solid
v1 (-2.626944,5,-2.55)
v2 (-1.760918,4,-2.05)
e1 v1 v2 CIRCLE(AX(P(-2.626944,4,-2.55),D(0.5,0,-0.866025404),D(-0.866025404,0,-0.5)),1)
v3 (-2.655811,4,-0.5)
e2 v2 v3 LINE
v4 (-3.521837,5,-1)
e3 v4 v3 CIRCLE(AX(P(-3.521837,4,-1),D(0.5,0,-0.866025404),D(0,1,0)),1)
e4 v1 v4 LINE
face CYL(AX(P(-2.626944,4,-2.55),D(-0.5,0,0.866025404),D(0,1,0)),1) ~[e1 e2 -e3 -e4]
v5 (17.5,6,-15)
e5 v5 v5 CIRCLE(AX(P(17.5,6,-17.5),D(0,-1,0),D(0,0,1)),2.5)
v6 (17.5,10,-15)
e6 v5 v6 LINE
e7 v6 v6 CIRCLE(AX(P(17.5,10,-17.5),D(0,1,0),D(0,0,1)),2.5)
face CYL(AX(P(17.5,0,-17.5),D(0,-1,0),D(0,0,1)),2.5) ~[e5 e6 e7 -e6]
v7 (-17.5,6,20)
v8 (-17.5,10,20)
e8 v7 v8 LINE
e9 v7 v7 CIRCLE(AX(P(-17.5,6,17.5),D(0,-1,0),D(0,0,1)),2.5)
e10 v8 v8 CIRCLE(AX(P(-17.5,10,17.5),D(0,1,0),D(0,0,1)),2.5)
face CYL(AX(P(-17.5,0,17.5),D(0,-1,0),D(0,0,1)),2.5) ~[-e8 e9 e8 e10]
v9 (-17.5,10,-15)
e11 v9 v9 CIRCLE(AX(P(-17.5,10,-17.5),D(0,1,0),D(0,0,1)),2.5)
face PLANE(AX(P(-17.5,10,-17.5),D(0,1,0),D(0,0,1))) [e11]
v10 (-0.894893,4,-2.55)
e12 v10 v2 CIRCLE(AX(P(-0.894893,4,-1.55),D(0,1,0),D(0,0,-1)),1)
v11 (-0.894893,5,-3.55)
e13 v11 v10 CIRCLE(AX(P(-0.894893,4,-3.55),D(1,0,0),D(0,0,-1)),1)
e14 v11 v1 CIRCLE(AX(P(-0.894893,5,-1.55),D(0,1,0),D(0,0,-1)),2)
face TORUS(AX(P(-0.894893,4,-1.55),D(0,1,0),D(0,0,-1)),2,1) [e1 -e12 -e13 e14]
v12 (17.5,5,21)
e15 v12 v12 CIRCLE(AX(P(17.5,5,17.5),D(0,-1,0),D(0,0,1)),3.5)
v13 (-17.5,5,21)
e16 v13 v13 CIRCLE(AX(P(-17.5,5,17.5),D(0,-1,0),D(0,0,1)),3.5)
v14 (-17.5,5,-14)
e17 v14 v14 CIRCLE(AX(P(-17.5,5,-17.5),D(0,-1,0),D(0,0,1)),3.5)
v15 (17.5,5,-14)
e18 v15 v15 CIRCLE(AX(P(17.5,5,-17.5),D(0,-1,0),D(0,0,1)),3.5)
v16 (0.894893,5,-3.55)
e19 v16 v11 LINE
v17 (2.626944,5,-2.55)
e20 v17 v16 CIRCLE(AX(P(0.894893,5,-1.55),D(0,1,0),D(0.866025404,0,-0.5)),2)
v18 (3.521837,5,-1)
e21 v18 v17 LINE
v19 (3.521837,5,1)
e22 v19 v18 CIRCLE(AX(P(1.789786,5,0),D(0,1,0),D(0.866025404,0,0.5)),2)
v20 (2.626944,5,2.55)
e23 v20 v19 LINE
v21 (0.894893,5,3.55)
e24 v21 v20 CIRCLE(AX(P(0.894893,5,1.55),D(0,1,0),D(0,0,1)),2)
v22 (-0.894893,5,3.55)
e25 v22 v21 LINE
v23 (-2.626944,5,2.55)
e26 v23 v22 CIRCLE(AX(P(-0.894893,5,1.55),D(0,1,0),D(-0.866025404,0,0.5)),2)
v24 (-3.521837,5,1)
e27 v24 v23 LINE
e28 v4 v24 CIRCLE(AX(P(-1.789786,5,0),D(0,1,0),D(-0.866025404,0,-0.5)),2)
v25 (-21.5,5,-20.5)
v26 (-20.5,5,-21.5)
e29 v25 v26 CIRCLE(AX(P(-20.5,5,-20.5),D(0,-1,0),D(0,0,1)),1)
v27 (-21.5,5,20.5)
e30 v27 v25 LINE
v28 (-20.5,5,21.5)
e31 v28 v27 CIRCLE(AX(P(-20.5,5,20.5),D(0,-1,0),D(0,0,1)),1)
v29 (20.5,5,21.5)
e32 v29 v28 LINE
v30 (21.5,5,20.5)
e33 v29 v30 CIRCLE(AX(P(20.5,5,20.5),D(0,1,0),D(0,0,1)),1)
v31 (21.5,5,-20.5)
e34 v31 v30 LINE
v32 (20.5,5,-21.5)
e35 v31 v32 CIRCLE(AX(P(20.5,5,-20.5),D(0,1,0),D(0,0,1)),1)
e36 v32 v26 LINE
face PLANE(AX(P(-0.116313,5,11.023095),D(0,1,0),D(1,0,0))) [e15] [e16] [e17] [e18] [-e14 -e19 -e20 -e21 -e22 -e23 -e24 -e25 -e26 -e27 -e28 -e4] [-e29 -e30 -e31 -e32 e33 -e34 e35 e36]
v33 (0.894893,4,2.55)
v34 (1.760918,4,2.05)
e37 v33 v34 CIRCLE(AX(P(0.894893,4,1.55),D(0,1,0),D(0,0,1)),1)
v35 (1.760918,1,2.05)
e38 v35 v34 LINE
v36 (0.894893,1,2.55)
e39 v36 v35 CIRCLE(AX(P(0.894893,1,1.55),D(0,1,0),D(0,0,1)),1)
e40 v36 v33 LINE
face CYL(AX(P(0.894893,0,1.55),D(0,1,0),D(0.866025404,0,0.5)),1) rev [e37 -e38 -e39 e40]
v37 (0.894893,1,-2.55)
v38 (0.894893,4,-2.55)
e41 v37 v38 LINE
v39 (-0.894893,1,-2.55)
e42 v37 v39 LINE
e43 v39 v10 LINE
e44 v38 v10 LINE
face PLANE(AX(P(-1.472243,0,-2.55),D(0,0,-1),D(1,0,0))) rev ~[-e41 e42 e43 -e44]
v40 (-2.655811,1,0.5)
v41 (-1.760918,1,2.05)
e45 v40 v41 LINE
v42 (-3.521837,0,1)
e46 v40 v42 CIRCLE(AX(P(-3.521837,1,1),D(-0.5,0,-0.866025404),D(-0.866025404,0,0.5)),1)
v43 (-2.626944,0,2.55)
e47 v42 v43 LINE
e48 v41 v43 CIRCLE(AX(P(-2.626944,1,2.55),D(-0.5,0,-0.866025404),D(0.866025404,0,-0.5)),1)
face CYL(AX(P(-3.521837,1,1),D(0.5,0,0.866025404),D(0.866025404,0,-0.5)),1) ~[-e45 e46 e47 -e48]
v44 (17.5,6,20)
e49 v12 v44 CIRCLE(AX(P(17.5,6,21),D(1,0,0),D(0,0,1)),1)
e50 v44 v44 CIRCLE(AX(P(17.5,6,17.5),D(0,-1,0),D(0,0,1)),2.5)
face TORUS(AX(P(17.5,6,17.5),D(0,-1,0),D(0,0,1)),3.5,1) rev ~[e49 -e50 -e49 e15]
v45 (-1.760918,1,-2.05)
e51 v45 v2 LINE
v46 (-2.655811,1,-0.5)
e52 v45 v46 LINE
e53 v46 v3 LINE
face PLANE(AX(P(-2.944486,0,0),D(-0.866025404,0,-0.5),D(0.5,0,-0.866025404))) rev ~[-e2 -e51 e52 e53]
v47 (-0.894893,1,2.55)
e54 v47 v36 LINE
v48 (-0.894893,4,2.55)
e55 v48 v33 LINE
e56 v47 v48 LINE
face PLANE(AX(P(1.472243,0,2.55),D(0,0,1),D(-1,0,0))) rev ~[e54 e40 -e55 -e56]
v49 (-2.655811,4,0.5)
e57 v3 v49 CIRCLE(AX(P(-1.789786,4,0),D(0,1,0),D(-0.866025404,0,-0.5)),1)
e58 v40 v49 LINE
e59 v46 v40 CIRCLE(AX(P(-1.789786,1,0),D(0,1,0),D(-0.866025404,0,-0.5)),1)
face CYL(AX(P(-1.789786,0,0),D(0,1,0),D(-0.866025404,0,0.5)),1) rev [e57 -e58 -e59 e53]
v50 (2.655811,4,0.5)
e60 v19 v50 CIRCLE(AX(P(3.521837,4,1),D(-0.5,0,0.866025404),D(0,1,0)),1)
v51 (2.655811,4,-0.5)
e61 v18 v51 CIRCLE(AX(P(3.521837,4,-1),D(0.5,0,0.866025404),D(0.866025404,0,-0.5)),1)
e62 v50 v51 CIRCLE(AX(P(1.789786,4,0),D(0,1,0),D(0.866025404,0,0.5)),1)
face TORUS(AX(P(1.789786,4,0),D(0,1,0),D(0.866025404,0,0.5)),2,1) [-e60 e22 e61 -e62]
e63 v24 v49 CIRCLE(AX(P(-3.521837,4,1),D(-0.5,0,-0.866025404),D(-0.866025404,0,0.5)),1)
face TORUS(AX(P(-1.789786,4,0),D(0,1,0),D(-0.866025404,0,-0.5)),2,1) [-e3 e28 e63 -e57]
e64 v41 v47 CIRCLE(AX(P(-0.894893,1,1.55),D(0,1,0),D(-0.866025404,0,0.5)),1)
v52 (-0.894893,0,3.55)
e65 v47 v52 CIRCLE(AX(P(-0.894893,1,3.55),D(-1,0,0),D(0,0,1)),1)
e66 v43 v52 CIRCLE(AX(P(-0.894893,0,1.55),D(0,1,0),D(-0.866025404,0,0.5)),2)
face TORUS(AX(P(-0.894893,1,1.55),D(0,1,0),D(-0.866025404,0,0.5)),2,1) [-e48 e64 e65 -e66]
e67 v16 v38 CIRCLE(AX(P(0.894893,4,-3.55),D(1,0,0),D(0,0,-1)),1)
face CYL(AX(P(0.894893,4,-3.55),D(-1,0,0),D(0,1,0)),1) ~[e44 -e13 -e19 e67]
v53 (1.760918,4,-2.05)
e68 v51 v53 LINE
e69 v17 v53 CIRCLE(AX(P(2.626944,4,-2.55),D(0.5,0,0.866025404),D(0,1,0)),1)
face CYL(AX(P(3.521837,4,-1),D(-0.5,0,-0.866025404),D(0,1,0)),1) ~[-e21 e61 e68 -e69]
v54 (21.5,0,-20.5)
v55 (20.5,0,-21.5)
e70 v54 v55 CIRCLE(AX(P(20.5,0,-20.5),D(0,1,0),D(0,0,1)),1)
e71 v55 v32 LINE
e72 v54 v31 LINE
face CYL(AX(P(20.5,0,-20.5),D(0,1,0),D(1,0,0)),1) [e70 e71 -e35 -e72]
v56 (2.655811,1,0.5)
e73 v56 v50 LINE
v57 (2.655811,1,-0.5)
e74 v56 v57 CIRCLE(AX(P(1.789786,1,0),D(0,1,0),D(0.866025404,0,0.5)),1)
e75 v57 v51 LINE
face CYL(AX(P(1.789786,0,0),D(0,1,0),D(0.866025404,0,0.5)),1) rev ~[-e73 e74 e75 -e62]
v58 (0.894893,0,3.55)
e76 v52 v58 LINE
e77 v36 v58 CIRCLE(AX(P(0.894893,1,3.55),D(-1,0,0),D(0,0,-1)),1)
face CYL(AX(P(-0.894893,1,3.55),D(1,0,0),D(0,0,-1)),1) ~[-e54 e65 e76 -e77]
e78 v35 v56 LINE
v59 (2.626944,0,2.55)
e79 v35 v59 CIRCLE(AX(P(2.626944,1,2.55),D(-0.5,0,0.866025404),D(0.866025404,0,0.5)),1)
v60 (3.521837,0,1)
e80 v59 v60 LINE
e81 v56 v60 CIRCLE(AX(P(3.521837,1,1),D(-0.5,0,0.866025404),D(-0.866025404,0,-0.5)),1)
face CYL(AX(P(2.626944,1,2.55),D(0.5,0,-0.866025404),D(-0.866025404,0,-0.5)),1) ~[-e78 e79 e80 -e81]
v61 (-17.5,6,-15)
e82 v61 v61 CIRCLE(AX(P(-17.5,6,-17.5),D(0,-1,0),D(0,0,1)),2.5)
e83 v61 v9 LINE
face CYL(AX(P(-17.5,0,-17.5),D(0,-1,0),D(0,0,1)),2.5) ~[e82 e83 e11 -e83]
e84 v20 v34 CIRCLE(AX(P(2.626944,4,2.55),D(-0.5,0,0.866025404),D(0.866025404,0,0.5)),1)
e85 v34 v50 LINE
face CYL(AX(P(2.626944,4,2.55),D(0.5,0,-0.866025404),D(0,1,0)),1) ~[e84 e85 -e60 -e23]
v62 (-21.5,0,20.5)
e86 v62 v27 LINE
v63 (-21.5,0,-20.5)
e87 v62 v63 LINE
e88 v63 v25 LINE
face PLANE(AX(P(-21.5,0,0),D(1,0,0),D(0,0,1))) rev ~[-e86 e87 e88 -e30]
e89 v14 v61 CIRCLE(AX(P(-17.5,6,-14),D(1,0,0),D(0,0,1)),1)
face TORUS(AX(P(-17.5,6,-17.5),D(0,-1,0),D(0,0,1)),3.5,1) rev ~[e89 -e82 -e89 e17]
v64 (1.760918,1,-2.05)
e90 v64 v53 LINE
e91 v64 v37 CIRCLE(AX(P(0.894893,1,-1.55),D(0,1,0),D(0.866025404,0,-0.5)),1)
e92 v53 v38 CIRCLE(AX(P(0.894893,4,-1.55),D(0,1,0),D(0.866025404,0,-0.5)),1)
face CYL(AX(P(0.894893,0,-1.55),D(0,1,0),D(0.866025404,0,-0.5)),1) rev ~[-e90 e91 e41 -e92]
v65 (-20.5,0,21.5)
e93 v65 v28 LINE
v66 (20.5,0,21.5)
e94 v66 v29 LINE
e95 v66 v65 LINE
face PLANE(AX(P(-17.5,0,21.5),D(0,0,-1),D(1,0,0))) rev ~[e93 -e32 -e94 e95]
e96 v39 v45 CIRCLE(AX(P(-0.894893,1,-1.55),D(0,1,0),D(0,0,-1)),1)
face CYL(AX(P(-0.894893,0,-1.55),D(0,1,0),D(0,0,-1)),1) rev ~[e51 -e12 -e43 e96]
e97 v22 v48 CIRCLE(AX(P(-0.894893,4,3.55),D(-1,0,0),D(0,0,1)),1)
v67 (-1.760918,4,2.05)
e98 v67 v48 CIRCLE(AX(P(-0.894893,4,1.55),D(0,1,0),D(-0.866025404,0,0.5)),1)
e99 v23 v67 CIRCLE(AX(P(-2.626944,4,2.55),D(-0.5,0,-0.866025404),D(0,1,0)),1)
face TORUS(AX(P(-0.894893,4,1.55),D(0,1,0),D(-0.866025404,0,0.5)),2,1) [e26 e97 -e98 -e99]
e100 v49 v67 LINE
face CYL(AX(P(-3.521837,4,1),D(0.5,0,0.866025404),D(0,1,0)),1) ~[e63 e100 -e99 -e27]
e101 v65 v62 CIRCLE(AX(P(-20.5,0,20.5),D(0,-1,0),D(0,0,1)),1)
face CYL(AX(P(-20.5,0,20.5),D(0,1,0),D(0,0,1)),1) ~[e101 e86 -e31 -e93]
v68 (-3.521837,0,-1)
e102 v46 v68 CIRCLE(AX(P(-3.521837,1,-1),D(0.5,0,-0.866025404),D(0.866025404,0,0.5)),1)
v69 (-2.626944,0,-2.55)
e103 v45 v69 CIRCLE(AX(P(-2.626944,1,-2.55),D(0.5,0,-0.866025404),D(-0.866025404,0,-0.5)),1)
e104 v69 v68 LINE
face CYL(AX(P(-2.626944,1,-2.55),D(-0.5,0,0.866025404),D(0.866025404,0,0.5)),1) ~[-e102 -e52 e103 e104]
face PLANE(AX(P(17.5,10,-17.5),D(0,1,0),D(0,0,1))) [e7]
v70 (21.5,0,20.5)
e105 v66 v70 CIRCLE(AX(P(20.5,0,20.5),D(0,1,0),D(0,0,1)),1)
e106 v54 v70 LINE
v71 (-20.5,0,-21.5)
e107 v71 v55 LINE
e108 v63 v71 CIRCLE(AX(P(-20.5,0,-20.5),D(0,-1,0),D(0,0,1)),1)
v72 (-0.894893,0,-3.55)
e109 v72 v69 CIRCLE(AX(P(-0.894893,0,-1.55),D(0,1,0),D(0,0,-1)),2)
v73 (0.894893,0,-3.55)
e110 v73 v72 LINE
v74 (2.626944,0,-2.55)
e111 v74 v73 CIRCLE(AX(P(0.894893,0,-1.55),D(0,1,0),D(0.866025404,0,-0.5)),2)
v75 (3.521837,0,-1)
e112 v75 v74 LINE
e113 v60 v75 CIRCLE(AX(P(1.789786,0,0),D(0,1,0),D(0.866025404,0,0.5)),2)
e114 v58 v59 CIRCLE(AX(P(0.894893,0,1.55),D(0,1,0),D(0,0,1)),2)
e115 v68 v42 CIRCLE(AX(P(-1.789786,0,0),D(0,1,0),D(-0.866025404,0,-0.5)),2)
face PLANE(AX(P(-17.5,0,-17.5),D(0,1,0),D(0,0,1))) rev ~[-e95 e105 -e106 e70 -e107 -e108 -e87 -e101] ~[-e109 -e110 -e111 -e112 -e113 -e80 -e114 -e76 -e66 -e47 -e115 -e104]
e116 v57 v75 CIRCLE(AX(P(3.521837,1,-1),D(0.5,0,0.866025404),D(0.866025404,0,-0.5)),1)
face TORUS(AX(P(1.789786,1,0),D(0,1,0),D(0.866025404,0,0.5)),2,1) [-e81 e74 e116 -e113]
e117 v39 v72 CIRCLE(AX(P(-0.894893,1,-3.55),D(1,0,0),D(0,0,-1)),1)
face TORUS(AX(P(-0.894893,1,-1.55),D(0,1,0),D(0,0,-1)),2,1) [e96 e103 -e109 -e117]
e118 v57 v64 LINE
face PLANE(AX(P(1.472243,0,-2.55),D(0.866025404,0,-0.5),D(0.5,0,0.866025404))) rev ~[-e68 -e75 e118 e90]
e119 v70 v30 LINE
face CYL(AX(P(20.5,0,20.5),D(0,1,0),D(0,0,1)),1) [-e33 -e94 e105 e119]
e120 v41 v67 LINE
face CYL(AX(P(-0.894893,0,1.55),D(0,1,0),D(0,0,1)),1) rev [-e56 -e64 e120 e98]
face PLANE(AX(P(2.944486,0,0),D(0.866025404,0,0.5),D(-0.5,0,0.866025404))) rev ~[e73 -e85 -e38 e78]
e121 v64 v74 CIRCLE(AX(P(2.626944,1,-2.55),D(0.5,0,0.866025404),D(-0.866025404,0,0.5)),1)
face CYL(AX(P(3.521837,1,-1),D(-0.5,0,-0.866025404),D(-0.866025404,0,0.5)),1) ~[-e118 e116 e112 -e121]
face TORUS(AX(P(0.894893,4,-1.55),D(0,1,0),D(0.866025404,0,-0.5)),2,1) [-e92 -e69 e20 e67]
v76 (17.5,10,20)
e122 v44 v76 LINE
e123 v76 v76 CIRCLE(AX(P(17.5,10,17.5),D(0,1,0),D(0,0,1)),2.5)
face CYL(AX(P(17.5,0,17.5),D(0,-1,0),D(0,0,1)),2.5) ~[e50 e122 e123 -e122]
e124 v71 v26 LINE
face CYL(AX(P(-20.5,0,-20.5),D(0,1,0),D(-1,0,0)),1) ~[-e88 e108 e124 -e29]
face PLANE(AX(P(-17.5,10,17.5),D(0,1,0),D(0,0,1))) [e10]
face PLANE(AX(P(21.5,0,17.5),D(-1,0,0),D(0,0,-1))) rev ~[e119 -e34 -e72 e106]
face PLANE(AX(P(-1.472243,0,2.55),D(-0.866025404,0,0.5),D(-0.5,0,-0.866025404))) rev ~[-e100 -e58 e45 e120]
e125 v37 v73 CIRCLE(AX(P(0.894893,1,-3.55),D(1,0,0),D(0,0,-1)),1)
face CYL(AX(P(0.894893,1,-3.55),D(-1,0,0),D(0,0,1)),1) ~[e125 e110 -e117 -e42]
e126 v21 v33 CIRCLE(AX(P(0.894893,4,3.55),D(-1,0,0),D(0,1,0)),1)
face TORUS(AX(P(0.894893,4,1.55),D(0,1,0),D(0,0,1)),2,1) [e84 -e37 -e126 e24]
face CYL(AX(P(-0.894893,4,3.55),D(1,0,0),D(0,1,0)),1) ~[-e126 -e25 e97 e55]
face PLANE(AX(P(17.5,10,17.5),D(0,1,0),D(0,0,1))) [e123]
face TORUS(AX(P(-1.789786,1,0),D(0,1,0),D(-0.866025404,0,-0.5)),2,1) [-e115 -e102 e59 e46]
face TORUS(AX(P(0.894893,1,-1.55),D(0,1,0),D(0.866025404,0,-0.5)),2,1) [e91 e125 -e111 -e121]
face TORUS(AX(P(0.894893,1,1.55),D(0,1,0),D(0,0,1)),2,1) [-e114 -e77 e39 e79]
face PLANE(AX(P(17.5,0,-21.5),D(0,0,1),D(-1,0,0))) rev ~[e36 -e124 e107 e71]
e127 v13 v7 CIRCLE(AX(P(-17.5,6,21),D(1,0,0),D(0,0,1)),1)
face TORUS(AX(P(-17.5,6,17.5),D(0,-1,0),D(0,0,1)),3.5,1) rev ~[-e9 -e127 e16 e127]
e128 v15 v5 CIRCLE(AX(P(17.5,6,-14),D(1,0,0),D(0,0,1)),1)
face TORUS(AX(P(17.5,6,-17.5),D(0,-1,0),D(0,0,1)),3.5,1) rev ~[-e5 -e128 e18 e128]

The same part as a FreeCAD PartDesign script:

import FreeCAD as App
import Part
import Sketcher
from FreeCAD import Vector
Q = App.Units.Quantity


def edges_at(feature, points):
    """Names of the edges that pass closest to the given points."""
    edges = feature.Shape.Edges
    near = lambda p: min(range(len(edges)), key=lambda i: edges[i].distToShape(Part.Vertex(*p))[0])
    return sorted({f"Edge{near(p) + 1}" for p in points})

doc = App.newDocument("Part")
body = doc.addObject("PartDesign::Body", "Body")

# Sketch on XZ plane
sketch1 = body.newObject("Sketcher::SketchObject", "Sketch")
sketch1.AttachmentSupport = (doc.getObject("XZ_Plane"), [""])
sketch1.MapMode = "FlatFace"
sketch1.addGeometry(Part.LineSegment(Vector(-21.5, 21.5, 0), Vector(21.5, 21.5, 0)), False)
sketch1.addGeometry(Part.LineSegment(Vector(21.5, 21.5, 0), Vector(21.5, -21.5, 0)), False)
sketch1.addGeometry(Part.LineSegment(Vector(21.5, -21.5, 0), Vector(-21.5, -21.5, 0)), False)
sketch1.addGeometry(Part.LineSegment(Vector(-21.5, -21.5, 0), Vector(-21.5, 21.5, 0)), False)
sketch1.addGeometry(Part.LineSegment(Vector(-2.9, 0, 0), Vector(-1.5, -2.5, 0)), False)
sketch1.addGeometry(Part.LineSegment(Vector(-1.5, -2.5, 0), Vector(1.5, -2.5, 0)), False)
sketch1.addGeometry(Part.LineSegment(Vector(1.5, -2.5, 0), Vector(2.9, 0, 0)), False)
sketch1.addGeometry(Part.LineSegment(Vector(2.9, 0, 0), Vector(1.5, 2.5, 0)), False)
sketch1.addGeometry(Part.LineSegment(Vector(1.5, 2.5, 0), Vector(-1.5, 2.5, 0)), False)
sketch1.addGeometry(Part.LineSegment(Vector(-1.5, 2.5, 0), Vector(-2.9, 0, 0)), False)
sketch1.addConstraint(Sketcher.Constraint("Coincident", 0, 2, 1, 1))
sketch1.addConstraint(Sketcher.Constraint("Coincident", 1, 2, 2, 1))
sketch1.addConstraint(Sketcher.Constraint("Coincident", 2, 2, 3, 1))
sketch1.addConstraint(Sketcher.Constraint("Coincident", 3, 2, 0, 1))
sketch1.addConstraint(Sketcher.Constraint("Coincident", 4, 2, 5, 1))
sketch1.addConstraint(Sketcher.Constraint("Coincident", 5, 2, 6, 1))
sketch1.addConstraint(Sketcher.Constraint("Coincident", 6, 2, 7, 1))
sketch1.addConstraint(Sketcher.Constraint("Coincident", 7, 2, 8, 1))
sketch1.addConstraint(Sketcher.Constraint("Coincident", 8, 2, 9, 1))
sketch1.addConstraint(Sketcher.Constraint("Coincident", 9, 2, 4, 1))
sketch1.addConstraint(Sketcher.Constraint("Horizontal", 0))
sketch1.addConstraint(Sketcher.Constraint("Vertical", 1))
sketch1.addConstraint(Sketcher.Constraint("Horizontal", 2))
sketch1.addConstraint(Sketcher.Constraint("Vertical", 3))
sketch1.addConstraint(Sketcher.Constraint("Horizontal", 5))
sketch1.addConstraint(Sketcher.Constraint("Horizontal", 8))
sketch1.addConstraint(Sketcher.Constraint("Symmetric", 0, 2, 2, 2, -1, 1))
sketch1.addConstraint(Sketcher.Constraint("Symmetric", 4, 2, 7, 2, -1, 1))
sketch1.addConstraint(Sketcher.Constraint("Symmetric", 6, 2, 9, 2, -1, 1))
sketch1.addConstraint(Sketcher.Constraint("PointOnObject", 6, 2, -1))
sketch1.addConstraint(Sketcher.Constraint("Parallel", 6, 9))
sketch1.addConstraint(Sketcher.Constraint("Vertical", 5, 2, 7, 2))
sketch1.addConstraint(Sketcher.Constraint("Equal", 2, 1))
sketch1.addConstraint(Sketcher.Constraint("DistanceX", 0, 1, 0, 2, 43.0))
sketch1.addConstraint(Sketcher.Constraint("Angle", 4, Q("-60 deg")))
sketch1.addConstraint(Sketcher.Constraint("DistanceY", 5, 2, 7, 2, 5.1))
sketch1.addConstraint(Sketcher.Constraint("DistanceX", 5, 1, 5, 2, 2.944486))
pad1 = body.newObject("PartDesign::Pad", "Pad")
pad1.Profile = sketch1
pad1.Length = 5
pad1.Reversed = True

# Sketch on XZ plane
sketch2 = body.newObject("Sketcher::SketchObject", "Sketch001")
sketch2.AttachmentSupport = (doc.getObject("XZ_Plane"), [""])
sketch2.MapMode = "FlatFace"
sketch2.addGeometry(Part.Circle(Vector(-17.5, -17.5, 0), Vector(0, 0, 1), 2.5), False)
sketch2.addGeometry(Part.Circle(Vector(17.5, -17.5, 0), Vector(0, 0, 1), 2.5), False)
sketch2.addGeometry(Part.Circle(Vector(17.5, 17.5, 0), Vector(0, 0, 1), 2.5), False)
sketch2.addGeometry(Part.Circle(Vector(-17.5, 17.5, 0), Vector(0, 0, 1), 2.5), False)
sketch2.addConstraint(Sketcher.Constraint("Equal", 0, 1))
sketch2.addConstraint(Sketcher.Constraint("Equal", 1, 2))
sketch2.addConstraint(Sketcher.Constraint("Equal", 2, 3))
sketch2.addConstraint(Sketcher.Constraint("Symmetric", 0, 3, 2, 3, -1, 1))
sketch2.addConstraint(Sketcher.Constraint("Symmetric", 1, 3, 3, 3, -1, 1))
sketch2.addConstraint(Sketcher.Constraint("Symmetric", 0, 3, 1, 3, -2))
sketch2.addConstraint(Sketcher.Constraint("Diameter", 0, 5.0))
sketch2.addConstraint(Sketcher.Constraint("DistanceX", 0, 3, 1, 3, 35.0))
sketch2.addConstraint(Sketcher.Constraint("DistanceY", 1, 3, 2, 3, 35.0))
pad2 = body.newObject("PartDesign::Pad", "Pad001")
pad2.Profile = sketch2
pad2.Length = 10
pad2.Reversed = True
doc.recompute()

fillet = body.newObject("PartDesign::Fillet", "Fillet")
fillet.Base = (pad2, edges_at(pad2, [
    (-17.5, 5, 15),
    (17.5, 5, 15),
    (17.5, 5, -20),
    (-17.5, 5, -20),
]))
fillet.Radius = 1
doc.recompute()

fillet2 = body.newObject("PartDesign::Fillet", "Fillet001")
fillet2.Base = (fillet, edges_at(fillet, [
    (-1.472, 2.5, 2.55),
    (1.472, 2.5, 2.55),
    (2.944, 2.5, 0),
    (1.472, 2.5, -2.55),
    (-1.472, 2.5, -2.55),
    (-2.944, 2.5, 0),
    (-21.5, 2.5, -21.5),
    (21.5, 2.5, -21.5),
    (21.5, 2.5, 21.5),
    (-21.5, 2.5, 21.5),
]))
fillet2.Radius = 1
doc.recompute()

fillet3 = body.newObject("PartDesign::Fillet", "Fillet002")
fillet3.Base = (fillet2, edges_at(fillet2, [
    (-1.395, 0, -2.416),
    (-1.395, 5, -2.416),
    (1.395, 0, -2.416),
    (1.395, 5, -2.416),
    (2.79, 0, 0),
    (2.79, 5, 0),
    (1.395, 0, 2.416),
    (1.395, 5, 2.416),
    (-1.395, 0, 2.416),
    (-1.395, 5, 2.416),
    (-2.79, 0, 0),
    (-2.79, 5, 0),
    (0, 0, -2.55),
    (0, 5, -2.55),
    (-2.208, 0, -1.275),
    (-2.208, 5, -1.275),
    (2.208, 0, -1.275),
    (2.208, 5, -1.275),
    (2.208, 0, 1.275),
    (2.208, 5, 1.275),
    (0, 0, 2.55),
    (0, 5, 2.55),
    (-2.208, 0, 1.275),
    (-2.208, 5, 1.275),
]))
fillet3.Radius = 1

doc.recompute()
